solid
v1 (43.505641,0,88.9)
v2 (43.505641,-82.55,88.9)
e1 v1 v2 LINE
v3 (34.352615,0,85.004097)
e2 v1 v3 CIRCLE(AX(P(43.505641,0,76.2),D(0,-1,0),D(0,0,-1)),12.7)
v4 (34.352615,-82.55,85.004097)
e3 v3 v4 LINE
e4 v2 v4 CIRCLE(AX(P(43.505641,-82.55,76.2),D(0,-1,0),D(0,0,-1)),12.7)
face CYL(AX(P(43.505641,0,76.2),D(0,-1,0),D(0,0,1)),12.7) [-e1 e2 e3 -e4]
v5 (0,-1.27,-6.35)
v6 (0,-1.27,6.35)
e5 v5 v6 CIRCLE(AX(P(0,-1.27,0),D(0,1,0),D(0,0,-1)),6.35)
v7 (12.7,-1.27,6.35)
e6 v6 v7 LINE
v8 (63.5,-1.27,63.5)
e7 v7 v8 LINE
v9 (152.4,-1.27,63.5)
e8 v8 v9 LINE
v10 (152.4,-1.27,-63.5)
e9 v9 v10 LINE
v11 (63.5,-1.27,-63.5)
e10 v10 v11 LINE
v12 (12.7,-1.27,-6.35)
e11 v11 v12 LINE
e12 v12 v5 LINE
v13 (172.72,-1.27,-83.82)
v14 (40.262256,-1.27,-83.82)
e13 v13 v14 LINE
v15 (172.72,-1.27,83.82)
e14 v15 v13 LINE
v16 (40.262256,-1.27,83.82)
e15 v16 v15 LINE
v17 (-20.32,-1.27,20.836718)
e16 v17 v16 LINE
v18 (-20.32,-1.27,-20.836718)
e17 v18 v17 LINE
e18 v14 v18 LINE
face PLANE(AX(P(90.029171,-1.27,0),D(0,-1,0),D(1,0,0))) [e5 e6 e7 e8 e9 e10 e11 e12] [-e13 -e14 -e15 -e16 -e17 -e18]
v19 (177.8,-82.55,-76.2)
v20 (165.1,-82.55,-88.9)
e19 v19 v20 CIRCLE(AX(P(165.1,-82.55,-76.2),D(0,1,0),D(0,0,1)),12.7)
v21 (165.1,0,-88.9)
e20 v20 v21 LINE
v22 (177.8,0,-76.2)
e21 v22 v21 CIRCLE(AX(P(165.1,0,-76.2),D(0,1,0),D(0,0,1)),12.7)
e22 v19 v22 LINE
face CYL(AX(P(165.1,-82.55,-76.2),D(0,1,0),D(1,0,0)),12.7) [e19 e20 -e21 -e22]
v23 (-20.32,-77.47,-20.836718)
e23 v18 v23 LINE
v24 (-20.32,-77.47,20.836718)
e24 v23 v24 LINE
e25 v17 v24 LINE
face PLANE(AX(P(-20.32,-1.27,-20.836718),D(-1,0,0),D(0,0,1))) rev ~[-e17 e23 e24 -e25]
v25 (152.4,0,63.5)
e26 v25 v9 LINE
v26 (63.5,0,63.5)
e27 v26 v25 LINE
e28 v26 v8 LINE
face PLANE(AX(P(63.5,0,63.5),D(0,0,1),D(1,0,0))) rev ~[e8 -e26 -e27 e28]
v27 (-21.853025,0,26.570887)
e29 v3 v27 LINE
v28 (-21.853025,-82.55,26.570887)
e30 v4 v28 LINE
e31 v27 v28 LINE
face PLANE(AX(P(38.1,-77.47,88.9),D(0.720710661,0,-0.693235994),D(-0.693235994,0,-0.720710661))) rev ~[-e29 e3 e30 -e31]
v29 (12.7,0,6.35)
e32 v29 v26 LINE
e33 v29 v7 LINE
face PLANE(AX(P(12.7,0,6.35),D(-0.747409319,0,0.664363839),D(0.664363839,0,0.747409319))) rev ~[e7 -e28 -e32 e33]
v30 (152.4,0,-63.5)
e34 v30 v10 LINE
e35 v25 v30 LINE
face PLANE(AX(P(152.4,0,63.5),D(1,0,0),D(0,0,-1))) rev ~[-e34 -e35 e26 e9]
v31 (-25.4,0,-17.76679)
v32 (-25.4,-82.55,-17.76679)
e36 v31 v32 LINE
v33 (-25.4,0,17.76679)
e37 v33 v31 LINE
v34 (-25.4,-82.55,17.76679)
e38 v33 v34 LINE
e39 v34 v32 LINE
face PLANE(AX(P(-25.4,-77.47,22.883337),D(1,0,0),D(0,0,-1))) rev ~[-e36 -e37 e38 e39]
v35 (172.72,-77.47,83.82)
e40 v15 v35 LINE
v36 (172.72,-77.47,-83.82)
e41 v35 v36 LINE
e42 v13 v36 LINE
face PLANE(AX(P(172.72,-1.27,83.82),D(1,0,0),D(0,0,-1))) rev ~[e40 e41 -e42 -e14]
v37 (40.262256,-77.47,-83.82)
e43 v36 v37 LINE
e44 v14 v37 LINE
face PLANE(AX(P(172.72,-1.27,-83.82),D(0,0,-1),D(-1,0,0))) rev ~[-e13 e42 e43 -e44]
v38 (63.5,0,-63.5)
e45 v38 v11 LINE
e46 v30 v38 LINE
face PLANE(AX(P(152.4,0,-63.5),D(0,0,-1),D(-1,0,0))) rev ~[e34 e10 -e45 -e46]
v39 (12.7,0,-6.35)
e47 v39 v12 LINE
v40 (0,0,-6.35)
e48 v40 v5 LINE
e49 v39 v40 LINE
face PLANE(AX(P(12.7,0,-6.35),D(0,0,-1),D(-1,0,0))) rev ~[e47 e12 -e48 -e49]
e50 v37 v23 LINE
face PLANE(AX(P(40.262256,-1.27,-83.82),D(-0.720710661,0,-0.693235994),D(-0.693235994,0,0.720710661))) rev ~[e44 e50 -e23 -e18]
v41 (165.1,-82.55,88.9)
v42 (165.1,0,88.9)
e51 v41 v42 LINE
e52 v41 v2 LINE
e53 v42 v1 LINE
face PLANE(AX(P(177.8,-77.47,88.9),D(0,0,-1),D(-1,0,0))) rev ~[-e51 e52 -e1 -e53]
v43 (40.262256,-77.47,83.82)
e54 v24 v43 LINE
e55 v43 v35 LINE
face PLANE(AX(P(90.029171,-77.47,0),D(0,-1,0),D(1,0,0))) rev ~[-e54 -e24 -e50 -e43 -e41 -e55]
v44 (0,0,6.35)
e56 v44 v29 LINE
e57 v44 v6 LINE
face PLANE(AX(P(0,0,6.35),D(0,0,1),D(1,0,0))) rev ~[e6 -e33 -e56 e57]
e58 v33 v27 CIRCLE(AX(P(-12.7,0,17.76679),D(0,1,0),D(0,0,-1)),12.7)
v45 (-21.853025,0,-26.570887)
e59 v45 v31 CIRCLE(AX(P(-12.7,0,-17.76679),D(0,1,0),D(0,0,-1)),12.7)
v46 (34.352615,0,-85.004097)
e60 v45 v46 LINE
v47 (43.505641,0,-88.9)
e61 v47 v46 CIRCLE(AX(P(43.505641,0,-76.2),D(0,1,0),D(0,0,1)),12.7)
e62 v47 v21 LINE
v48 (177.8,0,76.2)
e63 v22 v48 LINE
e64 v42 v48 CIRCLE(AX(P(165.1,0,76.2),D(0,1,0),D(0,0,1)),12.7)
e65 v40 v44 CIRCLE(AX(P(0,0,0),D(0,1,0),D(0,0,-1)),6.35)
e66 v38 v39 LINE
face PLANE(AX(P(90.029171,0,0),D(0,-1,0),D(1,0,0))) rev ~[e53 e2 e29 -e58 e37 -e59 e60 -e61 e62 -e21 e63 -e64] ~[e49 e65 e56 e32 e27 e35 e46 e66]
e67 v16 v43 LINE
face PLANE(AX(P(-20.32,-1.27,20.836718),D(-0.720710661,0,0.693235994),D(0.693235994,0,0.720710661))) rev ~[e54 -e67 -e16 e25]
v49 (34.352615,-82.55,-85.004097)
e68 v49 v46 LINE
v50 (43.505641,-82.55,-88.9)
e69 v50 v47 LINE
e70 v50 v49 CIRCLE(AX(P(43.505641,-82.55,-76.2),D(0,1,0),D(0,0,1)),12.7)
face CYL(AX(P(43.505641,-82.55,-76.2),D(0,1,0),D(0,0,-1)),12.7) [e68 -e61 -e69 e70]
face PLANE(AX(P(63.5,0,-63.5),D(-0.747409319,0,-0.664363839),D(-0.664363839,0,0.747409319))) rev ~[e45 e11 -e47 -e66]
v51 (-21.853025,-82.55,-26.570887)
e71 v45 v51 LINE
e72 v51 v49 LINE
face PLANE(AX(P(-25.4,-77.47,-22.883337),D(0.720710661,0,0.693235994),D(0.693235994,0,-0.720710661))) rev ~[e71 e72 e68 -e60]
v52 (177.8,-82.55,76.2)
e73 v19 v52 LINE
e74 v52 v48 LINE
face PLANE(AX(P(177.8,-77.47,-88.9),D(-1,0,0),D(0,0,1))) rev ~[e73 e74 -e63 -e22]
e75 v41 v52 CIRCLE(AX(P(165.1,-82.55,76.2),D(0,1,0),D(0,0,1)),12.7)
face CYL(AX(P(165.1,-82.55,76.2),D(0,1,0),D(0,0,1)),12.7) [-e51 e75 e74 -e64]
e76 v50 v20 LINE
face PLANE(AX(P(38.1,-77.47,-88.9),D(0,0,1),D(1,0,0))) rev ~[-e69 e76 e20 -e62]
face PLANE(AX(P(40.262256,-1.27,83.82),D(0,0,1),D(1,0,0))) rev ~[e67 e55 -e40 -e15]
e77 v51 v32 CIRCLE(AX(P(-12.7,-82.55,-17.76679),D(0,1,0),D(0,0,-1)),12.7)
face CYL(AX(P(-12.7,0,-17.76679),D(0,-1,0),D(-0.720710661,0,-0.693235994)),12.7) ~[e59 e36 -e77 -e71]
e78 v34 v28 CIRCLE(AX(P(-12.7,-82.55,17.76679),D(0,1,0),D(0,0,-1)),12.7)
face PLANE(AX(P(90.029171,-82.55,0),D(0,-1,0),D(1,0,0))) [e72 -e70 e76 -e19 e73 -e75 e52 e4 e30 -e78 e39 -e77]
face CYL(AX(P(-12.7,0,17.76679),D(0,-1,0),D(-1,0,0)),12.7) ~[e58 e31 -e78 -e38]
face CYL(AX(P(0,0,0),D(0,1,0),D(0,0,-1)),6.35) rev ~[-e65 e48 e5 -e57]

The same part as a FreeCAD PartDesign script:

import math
import FreeCAD as App
import Part
import Sketcher
from FreeCAD import Vector
Q = App.Units.Quantity


def edges_at(feature, points):
    """Names of the edges that pass closest to the given points."""
    edges = feature.Shape.Edges
    near = lambda p: min(range(len(edges)), key=lambda i: edges[i].distToShape(Part.Vertex(*p))[0])
    return sorted({f"Edge{near(p) + 1}" for p in points})


def add_polygon(sketch, points):
    """Adds a closed chain of lines whose ends are joined by coincident constraints."""
    first, n = sketch.GeometryCount, len(points)
    for a, b in zip(points, points[1:] + points[:1]):
        sketch.addGeometry(Part.LineSegment(App.Vector(*a, 0), App.Vector(*b, 0)), False)
    for i in range(n):
        sketch.addConstraint(Sketcher.Constraint("Coincident", first + i, 2, first + (i + 1) % n, 1))

doc = App.newDocument("Part")
body = doc.addObject("PartDesign::Body", "Body")

sketch1 = body.newObject("Sketcher::SketchObject", "Sketch")
sketch1.AttachmentSupport = (doc.getObject("XZ_Plane"), [""])
sketch1.MapMode = "FlatFace"
add_polygon(sketch1, [(-25.4, 22.883337), (-25.4, -22.883337), (38.1, -88.9), (177.8, -88.9), (177.8, 88.9), (38.1, 88.9)])
sketch1.addGeometry(Part.ArcOfCircle(Part.Circle(Vector(0, 0, 0), Vector(0, 0, 1), 6.35), math.radians(90), math.radians(270)), False)
sketch1.addGeometry(Part.LineSegment(Vector(0, 6.35, 0), Vector(12.7, 6.35, 0)), False)
sketch1.addGeometry(Part.LineSegment(Vector(12.7, 6.35, 0), Vector(63.5, 63.5, 0)), False)
sketch1.addGeometry(Part.LineSegment(Vector(63.5, 63.5, 0), Vector(152.4, 63.5, 0)), False)
sketch1.addGeometry(Part.LineSegment(Vector(152.4, 63.5, 0), Vector(152.4, -63.5, 0)), False)
sketch1.addGeometry(Part.LineSegment(Vector(152.4, -63.5, 0), Vector(63.5, -63.5, 0)), False)
sketch1.addGeometry(Part.LineSegment(Vector(63.5, -63.5, 0), Vector(12.7, -6.35, 0)), False)
sketch1.addGeometry(Part.LineSegment(Vector(12.7, -6.35, 0), Vector(0, -6.35, 0)), False)
sketch1.addConstraint(Sketcher.Constraint("Tangent", 6, 1, 7, 1))
sketch1.addConstraint(Sketcher.Constraint("Coincident", 7, 2, 8, 1))
sketch1.addConstraint(Sketcher.Constraint("Coincident", 8, 2, 9, 1))
sketch1.addConstraint(Sketcher.Constraint("Coincident", 9, 2, 10, 1))
sketch1.addConstraint(Sketcher.Constraint("Coincident", 10, 2, 11, 1))
sketch1.addConstraint(Sketcher.Constraint("Coincident", 11, 2, 12, 1))
sketch1.addConstraint(Sketcher.Constraint("Coincident", 12, 2, 13, 1))
sketch1.addConstraint(Sketcher.Constraint("Tangent", 13, 2, 6, 2))
sketch1.addConstraint(Sketcher.Constraint("Vertical", 0))
sketch1.addConstraint(Sketcher.Constraint("Horizontal", 2))
sketch1.addConstraint(Sketcher.Constraint("Vertical", 3))
sketch1.addConstraint(Sketcher.Constraint("Horizontal", 4))
sketch1.addConstraint(Sketcher.Constraint("Horizontal", 7))
sketch1.addConstraint(Sketcher.Constraint("Horizontal", 9))
sketch1.addConstraint(Sketcher.Constraint("Vertical", 10))
sketch1.addConstraint(Sketcher.Constraint("Horizontal", 11))
sketch1.addConstraint(Sketcher.Constraint("Horizontal", 13))
sketch1.addConstraint(Sketcher.Constraint("Coincident", 6, 3, -1, 1))
sketch1.addConstraint(Sketcher.Constraint("Symmetric", 1, 2, 4, 2, -1))
sketch1.addConstraint(Sketcher.Constraint("Symmetric", 8, 2, 11, 2, -1))
sketch1.addConstraint(Sketcher.Constraint("Vertical", 7, 2, 12, 2))
sketch1.addConstraint(Sketcher.Constraint("Equal", 1, 5))
sketch1.addConstraint(Sketcher.Constraint("DistanceY", 3, 1, 3, 2, Q("7 in")))
sketch1.addConstraint(Sketcher.Constraint("DistanceY", 10, 2, 10, 1, Q("5 in")))
sketch1.addConstraint(Sketcher.Constraint("Radius", 6, Q("0.25 in")))
sketch1.addConstraint(Sketcher.Constraint("DistanceX", 2, 1, 2, 2, Q("5.5 in")))
sketch1.addConstraint(Sketcher.Constraint("DistanceX", 7, 1, 7, 2, Q("0.5 in")))
sketch1.addConstraint(Sketcher.Constraint("DistanceX", 9, 1, 9, 2, Q("3.5 in")))
sketch1.addConstraint(Sketcher.Constraint("DistanceX", 0, 2, -1, 1, Q("1 in")))
sketch1.addConstraint(Sketcher.Constraint("DistanceX", -1, 1, 2, 2, Q("7 in")))
sketch1.addConstraint(Sketcher.Constraint("DistanceX", -1, 1, 9, 2, Q("6 in")))
sketch1.addConstraint(Sketcher.Constraint("Distance", 1, 91.599398))
pad1 = body.newObject("PartDesign::Pad", "Pad")
pad1.Profile = sketch1
pad1.Length = Q("0.05 in")

sketch2 = body.newObject("Sketcher::SketchObject", "Sketch001")
sketch2.AttachmentSupport = (doc.getObject("XZ_Plane"), [""])
sketch2.MapMode = "FlatFace"
sketch2.AttachmentOffset = App.Placement(Vector(0, 0, 0.05 * 25.4), App.Rotation())
add_polygon(sketch2, [(38.1, 88.9), (-25.4, 22.883337), (-25.4, -22.883337), (38.1, -88.9), (177.8, -88.9), (177.8, 88.9)])
add_polygon(sketch2, [(172.72, -83.82), (40.262256, -83.82), (-20.32, -20.836718), (-20.32, 20.836718), (40.262256, 83.82), (172.72, 83.82)])
sketch2.addConstraint(Sketcher.Constraint("Vertical", 1))
sketch2.addConstraint(Sketcher.Constraint("Horizontal", 3))
sketch2.addConstraint(Sketcher.Constraint("Vertical", 4))
sketch2.addConstraint(Sketcher.Constraint("Horizontal", 5))
sketch2.addConstraint(Sketcher.Constraint("Horizontal", 6))
sketch2.addConstraint(Sketcher.Constraint("Vertical", 8))
sketch2.addConstraint(Sketcher.Constraint("Horizontal", 10))
sketch2.addConstraint(Sketcher.Constraint("Vertical", 11))
sketch2.addConstraint(Sketcher.Constraint("Symmetric", 2, 2, 5, 2, -1))
sketch2.addConstraint(Sketcher.Constraint("Symmetric", 6, 2, 9, 2, -1))
sketch2.addConstraint(Sketcher.Constraint("Parallel", 2, 7))
sketch2.addConstraint(Sketcher.Constraint("Parallel", 0, 9))
sketch2.addConstraint(Sketcher.Constraint("Equal", 0, 2))
sketch2.addConstraint(Sketcher.Constraint("DistanceY", 4, 1, 4, 2, Q("7 in")))
sketch2.addConstraint(Sketcher.Constraint("DistanceX", 3, 1, 3, 2, Q("5.5 in")))
sketch2.addConstraint(Sketcher.Constraint("DistanceY", 11, 2, 11, 1, Q("6.6 in")))
sketch2.addConstraint(Sketcher.Constraint("DistanceX", 0, 2, -1, 1, Q("1 in")))
sketch2.addConstraint(Sketcher.Constraint("DistanceX", -1, 1, 3, 2, Q("7 in")))
sketch2.addConstraint(Sketcher.Constraint("DistanceX", 7, 2, -1, 1, Q("0.8 in")))
sketch2.addConstraint(Sketcher.Constraint("DistanceX", -1, 1, 10, 2, Q("6.8 in")))
sketch2.addConstraint(Sketcher.Constraint("Distance", 0, 91.599398))
sketch2.addConstraint(Sketcher.Constraint("DistanceX", 6, 2, 6, 1, 132.457744))
pad2 = body.newObject("PartDesign::Pad", "Pad001")
pad2.Profile = sketch2
pad2.Length = Q("3 in")

sketch3 = body.newObject("Sketcher::SketchObject", "Sketch002")
sketch3.AttachmentSupport = (doc.getObject("XZ_Plane"), [""])
sketch3.MapMode = "FlatFace"
sketch3.AttachmentOffset = App.Placement(Vector(0, 0, 3.05 * 25.4), App.Rotation())
add_polygon(sketch3, [(177.8, 88.9), (38.1, 88.9), (-25.4, 22.883337), (-25.4, -22.883337), (38.1, -88.9), (177.8, -88.9)])
sketch3.addConstraint(Sketcher.Constraint("Horizontal", 0))
sketch3.addConstraint(Sketcher.Constraint("Vertical", 2))
sketch3.addConstraint(Sketcher.Constraint("Horizontal", 4))
sketch3.addConstraint(Sketcher.Constraint("Vertical", 5))
sketch3.addConstraint(Sketcher.Constraint("Symmetric", 0, 2, 3, 2, -1))
sketch3.addConstraint(Sketcher.Constraint("Equal", 1, 3))
sketch3.addConstraint(Sketcher.Constraint("DistanceY", 5, 1, 5, 2, Q("7 in")))
sketch3.addConstraint(Sketcher.Constraint("DistanceX", 0, 2, 0, 1, Q("5.5 in")))
sketch3.addConstraint(Sketcher.Constraint("DistanceX", 1, 2, -1, 1, Q("1 in")))
sketch3.addConstraint(Sketcher.Constraint("DistanceX", -1, 1, 4, 2, Q("7 in")))
sketch3.addConstraint(Sketcher.Constraint("Distance", 1, 91.599398))
pad3 = body.newObject("PartDesign::Pad", "Pad002")
pad3.Profile = sketch3
pad3.Length = Q("0.2 in")
doc.recompute()

fillet = body.newObject("PartDesign::Fillet", "Fillet")
fillet.Base = (pad3, edges_at(pad3, [
    (-25.4, -41.275, 22.883),
    (-25.4, -41.275, -22.883),
    (38.1, -41.275, 88.9),
    (38.1, -41.275, -88.9),
]))
fillet.Radius = Q("0.5 in")
doc.recompute()

fillet2 = body.newObject("PartDesign::Fillet", "Fillet001")
fillet2.Base = (fillet, edges_at(fillet, [(177.8, -41.275, 88.9), (177.8, -41.275, -88.9)]))
fillet2.Radius = Q("0.5 in")

doc.recompute()
